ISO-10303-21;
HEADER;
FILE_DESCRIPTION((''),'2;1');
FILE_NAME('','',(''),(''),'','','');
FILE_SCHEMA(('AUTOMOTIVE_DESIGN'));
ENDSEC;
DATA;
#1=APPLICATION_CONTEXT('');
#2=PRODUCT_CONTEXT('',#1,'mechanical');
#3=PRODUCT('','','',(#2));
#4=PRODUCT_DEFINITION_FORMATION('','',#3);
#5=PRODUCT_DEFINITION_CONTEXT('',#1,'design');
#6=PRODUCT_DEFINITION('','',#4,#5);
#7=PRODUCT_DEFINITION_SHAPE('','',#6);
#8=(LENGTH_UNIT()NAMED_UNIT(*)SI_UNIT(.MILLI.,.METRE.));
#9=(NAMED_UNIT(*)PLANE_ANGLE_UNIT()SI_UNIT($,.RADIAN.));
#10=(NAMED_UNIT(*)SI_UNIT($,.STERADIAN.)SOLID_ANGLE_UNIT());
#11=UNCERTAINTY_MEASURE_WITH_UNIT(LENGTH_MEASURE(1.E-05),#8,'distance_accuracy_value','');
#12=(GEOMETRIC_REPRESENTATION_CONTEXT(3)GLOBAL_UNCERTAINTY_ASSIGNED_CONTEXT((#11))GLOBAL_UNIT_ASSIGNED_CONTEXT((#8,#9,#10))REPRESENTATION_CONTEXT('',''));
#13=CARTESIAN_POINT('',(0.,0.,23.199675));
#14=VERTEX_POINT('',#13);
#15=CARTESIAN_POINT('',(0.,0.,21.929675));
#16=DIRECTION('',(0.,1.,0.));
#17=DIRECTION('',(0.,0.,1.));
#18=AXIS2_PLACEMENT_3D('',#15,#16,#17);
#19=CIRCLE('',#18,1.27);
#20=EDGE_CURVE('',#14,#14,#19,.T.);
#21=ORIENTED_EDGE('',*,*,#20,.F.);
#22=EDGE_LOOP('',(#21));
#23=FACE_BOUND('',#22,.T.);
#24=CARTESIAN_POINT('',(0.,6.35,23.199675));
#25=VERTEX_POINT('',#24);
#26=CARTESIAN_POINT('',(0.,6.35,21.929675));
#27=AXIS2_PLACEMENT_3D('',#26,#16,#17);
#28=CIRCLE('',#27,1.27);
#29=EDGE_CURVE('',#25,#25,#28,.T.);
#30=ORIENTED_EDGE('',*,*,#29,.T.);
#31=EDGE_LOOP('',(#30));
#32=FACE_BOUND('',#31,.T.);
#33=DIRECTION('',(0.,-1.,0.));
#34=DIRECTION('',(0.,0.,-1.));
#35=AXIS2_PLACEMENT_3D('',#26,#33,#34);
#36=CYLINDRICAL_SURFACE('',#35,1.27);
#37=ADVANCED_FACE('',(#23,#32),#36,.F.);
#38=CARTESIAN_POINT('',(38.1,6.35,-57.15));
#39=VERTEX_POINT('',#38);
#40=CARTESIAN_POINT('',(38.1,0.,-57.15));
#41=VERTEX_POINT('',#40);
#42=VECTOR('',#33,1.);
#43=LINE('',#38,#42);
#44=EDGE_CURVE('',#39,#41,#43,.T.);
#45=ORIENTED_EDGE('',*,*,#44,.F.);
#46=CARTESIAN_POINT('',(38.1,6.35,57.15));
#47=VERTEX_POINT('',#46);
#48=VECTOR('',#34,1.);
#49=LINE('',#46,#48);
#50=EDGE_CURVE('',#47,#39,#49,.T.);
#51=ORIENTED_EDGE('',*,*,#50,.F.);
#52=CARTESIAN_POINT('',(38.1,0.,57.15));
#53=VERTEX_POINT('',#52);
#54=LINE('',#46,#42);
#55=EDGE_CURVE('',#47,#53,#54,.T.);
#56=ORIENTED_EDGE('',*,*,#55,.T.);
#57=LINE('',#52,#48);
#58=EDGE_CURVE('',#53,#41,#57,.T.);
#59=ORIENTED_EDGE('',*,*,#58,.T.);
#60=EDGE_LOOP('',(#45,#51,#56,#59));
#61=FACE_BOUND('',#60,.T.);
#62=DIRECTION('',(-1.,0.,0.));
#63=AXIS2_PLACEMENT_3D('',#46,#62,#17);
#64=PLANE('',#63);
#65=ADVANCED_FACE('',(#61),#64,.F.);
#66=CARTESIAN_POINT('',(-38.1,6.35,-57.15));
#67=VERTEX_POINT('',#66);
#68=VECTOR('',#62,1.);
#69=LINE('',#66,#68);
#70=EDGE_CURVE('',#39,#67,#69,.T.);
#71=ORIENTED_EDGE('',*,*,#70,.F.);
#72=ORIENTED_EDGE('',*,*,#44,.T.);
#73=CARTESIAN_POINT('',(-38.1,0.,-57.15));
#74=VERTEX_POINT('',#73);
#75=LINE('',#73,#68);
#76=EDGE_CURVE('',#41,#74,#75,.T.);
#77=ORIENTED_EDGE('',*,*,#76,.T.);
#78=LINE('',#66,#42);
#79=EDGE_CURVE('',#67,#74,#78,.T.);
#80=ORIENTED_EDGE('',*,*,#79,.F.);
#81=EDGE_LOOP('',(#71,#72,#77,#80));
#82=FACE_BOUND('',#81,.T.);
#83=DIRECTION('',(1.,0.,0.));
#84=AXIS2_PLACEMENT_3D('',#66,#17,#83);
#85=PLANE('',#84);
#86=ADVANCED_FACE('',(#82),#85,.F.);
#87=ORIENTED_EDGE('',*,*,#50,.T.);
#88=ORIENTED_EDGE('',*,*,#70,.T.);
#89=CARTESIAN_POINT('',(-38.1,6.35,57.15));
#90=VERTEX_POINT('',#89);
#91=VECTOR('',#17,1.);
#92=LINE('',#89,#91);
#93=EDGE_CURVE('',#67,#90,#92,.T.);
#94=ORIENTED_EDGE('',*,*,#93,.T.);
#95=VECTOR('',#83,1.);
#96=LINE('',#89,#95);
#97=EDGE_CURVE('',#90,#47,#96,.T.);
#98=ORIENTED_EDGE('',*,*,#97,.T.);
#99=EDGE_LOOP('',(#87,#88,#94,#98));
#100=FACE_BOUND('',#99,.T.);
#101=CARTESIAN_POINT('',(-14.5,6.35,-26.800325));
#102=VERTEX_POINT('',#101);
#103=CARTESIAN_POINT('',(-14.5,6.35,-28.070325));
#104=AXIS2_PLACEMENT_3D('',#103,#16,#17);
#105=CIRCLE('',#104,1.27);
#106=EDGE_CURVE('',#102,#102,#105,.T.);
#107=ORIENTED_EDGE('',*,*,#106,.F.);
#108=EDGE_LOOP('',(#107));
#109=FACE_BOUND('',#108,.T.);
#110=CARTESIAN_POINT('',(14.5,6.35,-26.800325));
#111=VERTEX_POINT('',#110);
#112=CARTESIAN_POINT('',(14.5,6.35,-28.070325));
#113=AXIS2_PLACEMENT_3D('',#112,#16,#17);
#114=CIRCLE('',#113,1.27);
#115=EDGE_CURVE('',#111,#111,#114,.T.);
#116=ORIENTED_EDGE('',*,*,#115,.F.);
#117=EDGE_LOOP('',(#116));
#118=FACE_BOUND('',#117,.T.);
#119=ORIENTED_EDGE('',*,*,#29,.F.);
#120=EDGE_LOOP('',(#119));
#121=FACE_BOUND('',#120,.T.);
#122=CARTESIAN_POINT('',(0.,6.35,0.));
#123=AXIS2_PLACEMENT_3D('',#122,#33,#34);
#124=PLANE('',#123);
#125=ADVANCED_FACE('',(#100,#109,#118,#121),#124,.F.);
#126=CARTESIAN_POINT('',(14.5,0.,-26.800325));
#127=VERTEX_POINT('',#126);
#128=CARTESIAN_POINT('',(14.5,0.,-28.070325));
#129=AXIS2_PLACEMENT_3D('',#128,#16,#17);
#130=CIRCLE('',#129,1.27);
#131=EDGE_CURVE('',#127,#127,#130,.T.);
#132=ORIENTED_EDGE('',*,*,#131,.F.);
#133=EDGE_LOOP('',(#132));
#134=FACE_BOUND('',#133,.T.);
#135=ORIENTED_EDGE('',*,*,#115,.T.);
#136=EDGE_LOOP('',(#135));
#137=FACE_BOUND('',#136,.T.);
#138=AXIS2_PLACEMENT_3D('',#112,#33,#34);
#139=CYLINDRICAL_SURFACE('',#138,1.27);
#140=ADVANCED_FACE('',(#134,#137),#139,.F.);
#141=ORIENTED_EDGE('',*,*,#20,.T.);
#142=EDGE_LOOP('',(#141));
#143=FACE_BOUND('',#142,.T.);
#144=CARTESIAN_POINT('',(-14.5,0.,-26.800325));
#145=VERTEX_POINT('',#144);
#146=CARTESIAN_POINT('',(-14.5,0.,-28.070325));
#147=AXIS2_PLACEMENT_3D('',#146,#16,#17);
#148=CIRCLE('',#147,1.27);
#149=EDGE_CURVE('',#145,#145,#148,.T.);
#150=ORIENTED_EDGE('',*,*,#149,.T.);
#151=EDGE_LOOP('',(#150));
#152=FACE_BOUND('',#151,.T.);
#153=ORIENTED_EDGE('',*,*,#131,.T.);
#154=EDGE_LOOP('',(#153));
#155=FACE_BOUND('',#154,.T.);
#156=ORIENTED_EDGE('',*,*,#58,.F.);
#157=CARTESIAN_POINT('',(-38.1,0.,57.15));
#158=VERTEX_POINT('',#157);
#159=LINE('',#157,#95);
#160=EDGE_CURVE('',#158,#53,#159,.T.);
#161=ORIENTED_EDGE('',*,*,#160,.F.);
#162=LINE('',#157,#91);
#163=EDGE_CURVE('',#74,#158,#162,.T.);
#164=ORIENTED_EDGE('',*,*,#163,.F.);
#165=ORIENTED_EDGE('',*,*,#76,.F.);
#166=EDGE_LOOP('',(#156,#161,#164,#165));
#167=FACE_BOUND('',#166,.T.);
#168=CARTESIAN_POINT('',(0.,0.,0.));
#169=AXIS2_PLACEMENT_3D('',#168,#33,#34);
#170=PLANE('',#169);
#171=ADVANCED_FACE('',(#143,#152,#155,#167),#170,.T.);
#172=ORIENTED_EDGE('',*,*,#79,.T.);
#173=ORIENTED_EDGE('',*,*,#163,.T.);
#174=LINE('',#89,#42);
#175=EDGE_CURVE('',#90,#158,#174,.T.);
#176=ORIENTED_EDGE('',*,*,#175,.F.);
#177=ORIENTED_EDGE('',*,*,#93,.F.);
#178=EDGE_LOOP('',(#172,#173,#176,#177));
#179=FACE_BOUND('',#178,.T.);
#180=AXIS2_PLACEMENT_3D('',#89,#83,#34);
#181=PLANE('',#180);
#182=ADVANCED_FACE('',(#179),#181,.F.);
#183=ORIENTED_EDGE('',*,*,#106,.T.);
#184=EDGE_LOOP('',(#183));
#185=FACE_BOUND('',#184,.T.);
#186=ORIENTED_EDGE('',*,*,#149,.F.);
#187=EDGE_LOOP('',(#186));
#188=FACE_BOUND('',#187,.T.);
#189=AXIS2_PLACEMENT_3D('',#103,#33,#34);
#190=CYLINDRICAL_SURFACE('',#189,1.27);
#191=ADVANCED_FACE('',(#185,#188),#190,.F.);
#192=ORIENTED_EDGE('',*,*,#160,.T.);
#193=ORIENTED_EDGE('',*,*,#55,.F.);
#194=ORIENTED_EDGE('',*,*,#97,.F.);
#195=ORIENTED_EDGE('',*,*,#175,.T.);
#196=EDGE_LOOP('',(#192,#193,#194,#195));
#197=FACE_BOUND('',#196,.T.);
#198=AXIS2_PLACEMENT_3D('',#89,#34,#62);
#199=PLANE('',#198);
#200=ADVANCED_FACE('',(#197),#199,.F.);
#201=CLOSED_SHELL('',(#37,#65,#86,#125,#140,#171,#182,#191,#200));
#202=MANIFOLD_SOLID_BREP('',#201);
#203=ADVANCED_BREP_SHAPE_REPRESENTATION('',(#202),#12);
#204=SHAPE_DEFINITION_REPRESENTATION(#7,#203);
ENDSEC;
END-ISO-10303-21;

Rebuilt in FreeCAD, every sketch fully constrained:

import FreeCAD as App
import Part
import Sketcher
from FreeCAD import Vector
Q = App.Units.Quantity

doc = App.newDocument("Part")
body = doc.addObject("PartDesign::Body", "Body")

sketch1 = body.newObject("Sketcher::SketchObject", "Sketch")
sketch1.AttachmentSupport = (doc.getObject("XZ_Plane"), [""])
sketch1.MapMode = "FlatFace"
sketch1.addGeometry(Part.LineSegment(Vector(-38.1, -57.15, 0), Vector(-38.1, 57.15, 0)), False)
sketch1.addGeometry(Part.LineSegment(Vector(-38.1, 57.15, 0), Vector(38.1, 57.15, 0)), False)
sketch1.addGeometry(Part.LineSegment(Vector(38.1, 57.15, 0), Vector(38.1, -57.15, 0)), False)
sketch1.addGeometry(Part.LineSegment(Vector(38.1, -57.15, 0), Vector(-38.1, -57.15, 0)), False)
sketch1.addGeometry(Part.Circle(Vector(0, 21.929675, 0), Vector(0, 0, 1), 1.27), False)
sketch1.addGeometry(Part.Circle(Vector(-14.5, -28.070325, 0), Vector(0, 0, 1), 1.27), False)
sketch1.addGeometry(Part.Circle(Vector(14.5, -28.070325, 0), Vector(0, 0, 1), 1.27), False)
sketch1.addConstraint(Sketcher.Constraint("Coincident", 0, 2, 1, 1))
sketch1.addConstraint(Sketcher.Constraint("Coincident", 1, 2, 2, 1))
sketch1.addConstraint(Sketcher.Constraint("Coincident", 2, 2, 3, 1))
sketch1.addConstraint(Sketcher.Constraint("Coincident", 3, 2, 0, 1))
sketch1.addConstraint(Sketcher.Constraint("Vertical", 0))
sketch1.addConstraint(Sketcher.Constraint("Horizontal", 1))
sketch1.addConstraint(Sketcher.Constraint("Vertical", 2))
sketch1.addConstraint(Sketcher.Constraint("Horizontal", 3))
sketch1.addConstraint(Sketcher.Constraint("Equal", 4, 5))
sketch1.addConstraint(Sketcher.Constraint("Equal", 5, 6))
sketch1.addConstraint(Sketcher.Constraint("Symmetric", 0, 2, 2, 2, -1, 1))
sketch1.addConstraint(Sketcher.Constraint("Symmetric", 5, 3, 6, 3, -2))
sketch1.addConstraint(Sketcher.Constraint("PointOnObject", 4, 3, -2))
sketch1.addConstraint(Sketcher.Constraint("Diameter", 4, Q("0.1 in")))
sketch1.addConstraint(Sketcher.Constraint("DistanceX", 1, 1, 1, 2, Q("3 in")))
sketch1.addConstraint(Sketcher.Constraint("DistanceY", 0, 1, 0, 2, Q("4.5 in")))
sketch1.addConstraint(Sketcher.Constraint("DistanceX", 5, 3, -1, 1, 14.5))
sketch1.addConstraint(Sketcher.Constraint("DistanceY", 5, 3, 4, 3, 50.0))
sketch1.addConstraint(Sketcher.Constraint("DistanceY", -1, 1, 4, 3, 21.929675))
pad1 = body.newObject("PartDesign::Pad", "Pad")
pad1.Profile = sketch1
pad1.Length = Q("0.25 in")
pad1.Reversed = True

doc.recompute()
